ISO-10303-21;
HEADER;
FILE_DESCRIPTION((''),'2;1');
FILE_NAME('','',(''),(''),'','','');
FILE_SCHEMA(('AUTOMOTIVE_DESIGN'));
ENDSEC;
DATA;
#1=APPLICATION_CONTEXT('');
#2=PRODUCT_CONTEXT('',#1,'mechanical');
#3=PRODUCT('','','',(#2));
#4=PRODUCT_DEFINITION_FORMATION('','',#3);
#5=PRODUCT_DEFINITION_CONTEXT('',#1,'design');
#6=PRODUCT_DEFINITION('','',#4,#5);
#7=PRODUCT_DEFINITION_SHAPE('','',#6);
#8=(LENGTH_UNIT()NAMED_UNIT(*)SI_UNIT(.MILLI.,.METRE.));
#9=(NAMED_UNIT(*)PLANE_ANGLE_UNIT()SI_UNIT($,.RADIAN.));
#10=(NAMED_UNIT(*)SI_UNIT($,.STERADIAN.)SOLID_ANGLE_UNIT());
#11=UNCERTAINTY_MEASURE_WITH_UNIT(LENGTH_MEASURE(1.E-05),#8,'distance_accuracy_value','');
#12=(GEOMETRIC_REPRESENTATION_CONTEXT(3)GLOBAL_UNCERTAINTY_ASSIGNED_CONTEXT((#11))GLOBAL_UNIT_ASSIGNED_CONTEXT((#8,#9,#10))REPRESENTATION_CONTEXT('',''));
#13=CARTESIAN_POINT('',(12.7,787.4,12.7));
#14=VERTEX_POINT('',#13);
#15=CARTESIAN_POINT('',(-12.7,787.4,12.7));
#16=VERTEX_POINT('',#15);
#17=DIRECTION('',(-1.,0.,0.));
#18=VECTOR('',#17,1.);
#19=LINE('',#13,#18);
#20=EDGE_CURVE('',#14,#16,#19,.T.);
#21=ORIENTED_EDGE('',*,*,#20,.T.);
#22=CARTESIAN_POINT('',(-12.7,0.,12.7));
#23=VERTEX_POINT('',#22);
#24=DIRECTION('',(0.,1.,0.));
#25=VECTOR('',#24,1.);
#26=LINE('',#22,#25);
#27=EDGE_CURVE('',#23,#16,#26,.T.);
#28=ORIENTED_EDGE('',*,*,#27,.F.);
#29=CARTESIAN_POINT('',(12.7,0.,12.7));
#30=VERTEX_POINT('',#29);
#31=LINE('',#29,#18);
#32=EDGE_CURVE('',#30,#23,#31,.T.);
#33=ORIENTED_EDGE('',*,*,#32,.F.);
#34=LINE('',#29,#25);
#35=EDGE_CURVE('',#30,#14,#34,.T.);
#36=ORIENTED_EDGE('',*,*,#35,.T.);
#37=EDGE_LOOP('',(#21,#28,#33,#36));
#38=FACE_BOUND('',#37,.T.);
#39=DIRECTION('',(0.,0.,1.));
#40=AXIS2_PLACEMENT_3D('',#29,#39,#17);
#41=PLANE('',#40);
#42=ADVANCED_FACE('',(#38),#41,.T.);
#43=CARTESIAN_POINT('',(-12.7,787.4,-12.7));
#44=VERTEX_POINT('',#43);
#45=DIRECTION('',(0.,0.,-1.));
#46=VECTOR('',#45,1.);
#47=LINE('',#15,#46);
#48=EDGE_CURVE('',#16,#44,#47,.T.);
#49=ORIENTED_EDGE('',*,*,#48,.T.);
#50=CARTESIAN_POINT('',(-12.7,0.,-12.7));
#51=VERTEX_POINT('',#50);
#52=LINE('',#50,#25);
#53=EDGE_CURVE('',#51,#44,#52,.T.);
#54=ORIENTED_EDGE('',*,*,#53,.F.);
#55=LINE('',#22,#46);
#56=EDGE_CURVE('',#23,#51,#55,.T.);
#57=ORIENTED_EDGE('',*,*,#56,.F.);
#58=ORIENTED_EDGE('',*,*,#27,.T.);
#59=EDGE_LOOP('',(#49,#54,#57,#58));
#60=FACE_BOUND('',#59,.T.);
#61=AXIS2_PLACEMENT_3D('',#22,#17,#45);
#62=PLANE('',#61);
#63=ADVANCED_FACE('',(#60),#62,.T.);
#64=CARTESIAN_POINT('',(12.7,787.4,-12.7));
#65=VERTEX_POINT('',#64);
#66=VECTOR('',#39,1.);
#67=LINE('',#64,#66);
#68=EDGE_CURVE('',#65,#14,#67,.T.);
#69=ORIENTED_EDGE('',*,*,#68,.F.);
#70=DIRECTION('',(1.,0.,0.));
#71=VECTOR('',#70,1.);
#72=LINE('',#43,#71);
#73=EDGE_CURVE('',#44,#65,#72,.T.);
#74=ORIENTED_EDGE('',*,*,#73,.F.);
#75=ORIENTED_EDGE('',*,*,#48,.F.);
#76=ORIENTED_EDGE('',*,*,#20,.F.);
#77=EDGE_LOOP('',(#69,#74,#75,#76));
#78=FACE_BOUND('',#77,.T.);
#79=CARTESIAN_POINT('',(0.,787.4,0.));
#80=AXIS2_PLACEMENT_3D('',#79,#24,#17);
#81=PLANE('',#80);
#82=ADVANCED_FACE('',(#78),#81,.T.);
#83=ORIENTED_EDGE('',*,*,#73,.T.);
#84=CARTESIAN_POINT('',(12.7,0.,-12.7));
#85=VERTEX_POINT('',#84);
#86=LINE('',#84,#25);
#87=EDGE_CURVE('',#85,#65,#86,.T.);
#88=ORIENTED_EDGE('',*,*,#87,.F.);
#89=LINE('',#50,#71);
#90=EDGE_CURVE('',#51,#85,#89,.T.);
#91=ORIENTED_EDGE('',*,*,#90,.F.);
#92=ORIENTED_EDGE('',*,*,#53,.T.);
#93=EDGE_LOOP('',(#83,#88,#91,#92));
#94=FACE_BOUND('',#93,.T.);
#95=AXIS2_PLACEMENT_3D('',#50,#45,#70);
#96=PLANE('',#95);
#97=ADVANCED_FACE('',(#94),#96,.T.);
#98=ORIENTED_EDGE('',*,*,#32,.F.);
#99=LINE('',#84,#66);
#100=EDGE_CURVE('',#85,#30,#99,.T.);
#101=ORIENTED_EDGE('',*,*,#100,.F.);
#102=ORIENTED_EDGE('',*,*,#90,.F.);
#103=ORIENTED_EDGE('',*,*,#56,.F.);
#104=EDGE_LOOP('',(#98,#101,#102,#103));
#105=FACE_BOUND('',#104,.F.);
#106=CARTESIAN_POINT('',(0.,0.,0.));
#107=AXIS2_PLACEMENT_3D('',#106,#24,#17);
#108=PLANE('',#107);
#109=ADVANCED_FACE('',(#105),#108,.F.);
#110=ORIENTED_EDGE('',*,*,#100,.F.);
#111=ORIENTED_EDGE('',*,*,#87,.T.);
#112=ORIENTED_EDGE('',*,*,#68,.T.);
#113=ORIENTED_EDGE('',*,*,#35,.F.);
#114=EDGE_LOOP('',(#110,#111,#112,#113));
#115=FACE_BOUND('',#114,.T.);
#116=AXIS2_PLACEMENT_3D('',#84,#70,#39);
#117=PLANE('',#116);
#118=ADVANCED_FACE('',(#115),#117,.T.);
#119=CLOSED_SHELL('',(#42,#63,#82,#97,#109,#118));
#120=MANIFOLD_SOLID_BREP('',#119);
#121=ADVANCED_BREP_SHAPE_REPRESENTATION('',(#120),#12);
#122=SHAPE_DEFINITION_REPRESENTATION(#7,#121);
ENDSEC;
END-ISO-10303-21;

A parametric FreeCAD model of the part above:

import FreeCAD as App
import Part
import Sketcher
from FreeCAD import Vector
Q = App.Units.Quantity


def add_polygon(sketch, points):
    """Adds a closed chain of lines whose ends are joined by coincident constraints."""
    first, n = sketch.GeometryCount, len(points)
    for a, b in zip(points, points[1:] + points[:1]):
        sketch.addGeometry(Part.LineSegment(App.Vector(*a, 0), App.Vector(*b, 0)), False)
    for i in range(n):
        sketch.addConstraint(Sketcher.Constraint("Coincident", first + i, 2, first + (i + 1) % n, 1))

doc = App.newDocument("Part")
body = doc.addObject("PartDesign::Body", "Body")

# Sketch on XZ plane
sketch1 = body.newObject("Sketcher::SketchObject", "Sketch")
sketch1.AttachmentSupport = (doc.getObject("XZ_Plane"), [""])
sketch1.MapMode = "FlatFace"
add_polygon(sketch1, [(-13, 13), (13, 13), (13, -13), (-13, -13)])  # lines 0-3
sketch1.addConstraint([
    Sketcher.Constraint("Horizontal", 0),
    Sketcher.Constraint("Vertical", 1),
    Sketcher.Constraint("Horizontal", 2),
    Sketcher.Constraint("Vertical", 3),
    Sketcher.Constraint("Symmetric", 0, 2, 2, 2, -1, 1),
    Sketcher.Constraint("Equal", 2, 1),
    Sketcher.Constraint("DistanceX", 0, 1, 0, 2, Q("1 in")),
])
pad1 = body.newObject("PartDesign::Pad", "Pad")
pad1.Profile = sketch1
pad1.Length = Q("31 in")
pad1.Reversed = True

doc.recompute()
